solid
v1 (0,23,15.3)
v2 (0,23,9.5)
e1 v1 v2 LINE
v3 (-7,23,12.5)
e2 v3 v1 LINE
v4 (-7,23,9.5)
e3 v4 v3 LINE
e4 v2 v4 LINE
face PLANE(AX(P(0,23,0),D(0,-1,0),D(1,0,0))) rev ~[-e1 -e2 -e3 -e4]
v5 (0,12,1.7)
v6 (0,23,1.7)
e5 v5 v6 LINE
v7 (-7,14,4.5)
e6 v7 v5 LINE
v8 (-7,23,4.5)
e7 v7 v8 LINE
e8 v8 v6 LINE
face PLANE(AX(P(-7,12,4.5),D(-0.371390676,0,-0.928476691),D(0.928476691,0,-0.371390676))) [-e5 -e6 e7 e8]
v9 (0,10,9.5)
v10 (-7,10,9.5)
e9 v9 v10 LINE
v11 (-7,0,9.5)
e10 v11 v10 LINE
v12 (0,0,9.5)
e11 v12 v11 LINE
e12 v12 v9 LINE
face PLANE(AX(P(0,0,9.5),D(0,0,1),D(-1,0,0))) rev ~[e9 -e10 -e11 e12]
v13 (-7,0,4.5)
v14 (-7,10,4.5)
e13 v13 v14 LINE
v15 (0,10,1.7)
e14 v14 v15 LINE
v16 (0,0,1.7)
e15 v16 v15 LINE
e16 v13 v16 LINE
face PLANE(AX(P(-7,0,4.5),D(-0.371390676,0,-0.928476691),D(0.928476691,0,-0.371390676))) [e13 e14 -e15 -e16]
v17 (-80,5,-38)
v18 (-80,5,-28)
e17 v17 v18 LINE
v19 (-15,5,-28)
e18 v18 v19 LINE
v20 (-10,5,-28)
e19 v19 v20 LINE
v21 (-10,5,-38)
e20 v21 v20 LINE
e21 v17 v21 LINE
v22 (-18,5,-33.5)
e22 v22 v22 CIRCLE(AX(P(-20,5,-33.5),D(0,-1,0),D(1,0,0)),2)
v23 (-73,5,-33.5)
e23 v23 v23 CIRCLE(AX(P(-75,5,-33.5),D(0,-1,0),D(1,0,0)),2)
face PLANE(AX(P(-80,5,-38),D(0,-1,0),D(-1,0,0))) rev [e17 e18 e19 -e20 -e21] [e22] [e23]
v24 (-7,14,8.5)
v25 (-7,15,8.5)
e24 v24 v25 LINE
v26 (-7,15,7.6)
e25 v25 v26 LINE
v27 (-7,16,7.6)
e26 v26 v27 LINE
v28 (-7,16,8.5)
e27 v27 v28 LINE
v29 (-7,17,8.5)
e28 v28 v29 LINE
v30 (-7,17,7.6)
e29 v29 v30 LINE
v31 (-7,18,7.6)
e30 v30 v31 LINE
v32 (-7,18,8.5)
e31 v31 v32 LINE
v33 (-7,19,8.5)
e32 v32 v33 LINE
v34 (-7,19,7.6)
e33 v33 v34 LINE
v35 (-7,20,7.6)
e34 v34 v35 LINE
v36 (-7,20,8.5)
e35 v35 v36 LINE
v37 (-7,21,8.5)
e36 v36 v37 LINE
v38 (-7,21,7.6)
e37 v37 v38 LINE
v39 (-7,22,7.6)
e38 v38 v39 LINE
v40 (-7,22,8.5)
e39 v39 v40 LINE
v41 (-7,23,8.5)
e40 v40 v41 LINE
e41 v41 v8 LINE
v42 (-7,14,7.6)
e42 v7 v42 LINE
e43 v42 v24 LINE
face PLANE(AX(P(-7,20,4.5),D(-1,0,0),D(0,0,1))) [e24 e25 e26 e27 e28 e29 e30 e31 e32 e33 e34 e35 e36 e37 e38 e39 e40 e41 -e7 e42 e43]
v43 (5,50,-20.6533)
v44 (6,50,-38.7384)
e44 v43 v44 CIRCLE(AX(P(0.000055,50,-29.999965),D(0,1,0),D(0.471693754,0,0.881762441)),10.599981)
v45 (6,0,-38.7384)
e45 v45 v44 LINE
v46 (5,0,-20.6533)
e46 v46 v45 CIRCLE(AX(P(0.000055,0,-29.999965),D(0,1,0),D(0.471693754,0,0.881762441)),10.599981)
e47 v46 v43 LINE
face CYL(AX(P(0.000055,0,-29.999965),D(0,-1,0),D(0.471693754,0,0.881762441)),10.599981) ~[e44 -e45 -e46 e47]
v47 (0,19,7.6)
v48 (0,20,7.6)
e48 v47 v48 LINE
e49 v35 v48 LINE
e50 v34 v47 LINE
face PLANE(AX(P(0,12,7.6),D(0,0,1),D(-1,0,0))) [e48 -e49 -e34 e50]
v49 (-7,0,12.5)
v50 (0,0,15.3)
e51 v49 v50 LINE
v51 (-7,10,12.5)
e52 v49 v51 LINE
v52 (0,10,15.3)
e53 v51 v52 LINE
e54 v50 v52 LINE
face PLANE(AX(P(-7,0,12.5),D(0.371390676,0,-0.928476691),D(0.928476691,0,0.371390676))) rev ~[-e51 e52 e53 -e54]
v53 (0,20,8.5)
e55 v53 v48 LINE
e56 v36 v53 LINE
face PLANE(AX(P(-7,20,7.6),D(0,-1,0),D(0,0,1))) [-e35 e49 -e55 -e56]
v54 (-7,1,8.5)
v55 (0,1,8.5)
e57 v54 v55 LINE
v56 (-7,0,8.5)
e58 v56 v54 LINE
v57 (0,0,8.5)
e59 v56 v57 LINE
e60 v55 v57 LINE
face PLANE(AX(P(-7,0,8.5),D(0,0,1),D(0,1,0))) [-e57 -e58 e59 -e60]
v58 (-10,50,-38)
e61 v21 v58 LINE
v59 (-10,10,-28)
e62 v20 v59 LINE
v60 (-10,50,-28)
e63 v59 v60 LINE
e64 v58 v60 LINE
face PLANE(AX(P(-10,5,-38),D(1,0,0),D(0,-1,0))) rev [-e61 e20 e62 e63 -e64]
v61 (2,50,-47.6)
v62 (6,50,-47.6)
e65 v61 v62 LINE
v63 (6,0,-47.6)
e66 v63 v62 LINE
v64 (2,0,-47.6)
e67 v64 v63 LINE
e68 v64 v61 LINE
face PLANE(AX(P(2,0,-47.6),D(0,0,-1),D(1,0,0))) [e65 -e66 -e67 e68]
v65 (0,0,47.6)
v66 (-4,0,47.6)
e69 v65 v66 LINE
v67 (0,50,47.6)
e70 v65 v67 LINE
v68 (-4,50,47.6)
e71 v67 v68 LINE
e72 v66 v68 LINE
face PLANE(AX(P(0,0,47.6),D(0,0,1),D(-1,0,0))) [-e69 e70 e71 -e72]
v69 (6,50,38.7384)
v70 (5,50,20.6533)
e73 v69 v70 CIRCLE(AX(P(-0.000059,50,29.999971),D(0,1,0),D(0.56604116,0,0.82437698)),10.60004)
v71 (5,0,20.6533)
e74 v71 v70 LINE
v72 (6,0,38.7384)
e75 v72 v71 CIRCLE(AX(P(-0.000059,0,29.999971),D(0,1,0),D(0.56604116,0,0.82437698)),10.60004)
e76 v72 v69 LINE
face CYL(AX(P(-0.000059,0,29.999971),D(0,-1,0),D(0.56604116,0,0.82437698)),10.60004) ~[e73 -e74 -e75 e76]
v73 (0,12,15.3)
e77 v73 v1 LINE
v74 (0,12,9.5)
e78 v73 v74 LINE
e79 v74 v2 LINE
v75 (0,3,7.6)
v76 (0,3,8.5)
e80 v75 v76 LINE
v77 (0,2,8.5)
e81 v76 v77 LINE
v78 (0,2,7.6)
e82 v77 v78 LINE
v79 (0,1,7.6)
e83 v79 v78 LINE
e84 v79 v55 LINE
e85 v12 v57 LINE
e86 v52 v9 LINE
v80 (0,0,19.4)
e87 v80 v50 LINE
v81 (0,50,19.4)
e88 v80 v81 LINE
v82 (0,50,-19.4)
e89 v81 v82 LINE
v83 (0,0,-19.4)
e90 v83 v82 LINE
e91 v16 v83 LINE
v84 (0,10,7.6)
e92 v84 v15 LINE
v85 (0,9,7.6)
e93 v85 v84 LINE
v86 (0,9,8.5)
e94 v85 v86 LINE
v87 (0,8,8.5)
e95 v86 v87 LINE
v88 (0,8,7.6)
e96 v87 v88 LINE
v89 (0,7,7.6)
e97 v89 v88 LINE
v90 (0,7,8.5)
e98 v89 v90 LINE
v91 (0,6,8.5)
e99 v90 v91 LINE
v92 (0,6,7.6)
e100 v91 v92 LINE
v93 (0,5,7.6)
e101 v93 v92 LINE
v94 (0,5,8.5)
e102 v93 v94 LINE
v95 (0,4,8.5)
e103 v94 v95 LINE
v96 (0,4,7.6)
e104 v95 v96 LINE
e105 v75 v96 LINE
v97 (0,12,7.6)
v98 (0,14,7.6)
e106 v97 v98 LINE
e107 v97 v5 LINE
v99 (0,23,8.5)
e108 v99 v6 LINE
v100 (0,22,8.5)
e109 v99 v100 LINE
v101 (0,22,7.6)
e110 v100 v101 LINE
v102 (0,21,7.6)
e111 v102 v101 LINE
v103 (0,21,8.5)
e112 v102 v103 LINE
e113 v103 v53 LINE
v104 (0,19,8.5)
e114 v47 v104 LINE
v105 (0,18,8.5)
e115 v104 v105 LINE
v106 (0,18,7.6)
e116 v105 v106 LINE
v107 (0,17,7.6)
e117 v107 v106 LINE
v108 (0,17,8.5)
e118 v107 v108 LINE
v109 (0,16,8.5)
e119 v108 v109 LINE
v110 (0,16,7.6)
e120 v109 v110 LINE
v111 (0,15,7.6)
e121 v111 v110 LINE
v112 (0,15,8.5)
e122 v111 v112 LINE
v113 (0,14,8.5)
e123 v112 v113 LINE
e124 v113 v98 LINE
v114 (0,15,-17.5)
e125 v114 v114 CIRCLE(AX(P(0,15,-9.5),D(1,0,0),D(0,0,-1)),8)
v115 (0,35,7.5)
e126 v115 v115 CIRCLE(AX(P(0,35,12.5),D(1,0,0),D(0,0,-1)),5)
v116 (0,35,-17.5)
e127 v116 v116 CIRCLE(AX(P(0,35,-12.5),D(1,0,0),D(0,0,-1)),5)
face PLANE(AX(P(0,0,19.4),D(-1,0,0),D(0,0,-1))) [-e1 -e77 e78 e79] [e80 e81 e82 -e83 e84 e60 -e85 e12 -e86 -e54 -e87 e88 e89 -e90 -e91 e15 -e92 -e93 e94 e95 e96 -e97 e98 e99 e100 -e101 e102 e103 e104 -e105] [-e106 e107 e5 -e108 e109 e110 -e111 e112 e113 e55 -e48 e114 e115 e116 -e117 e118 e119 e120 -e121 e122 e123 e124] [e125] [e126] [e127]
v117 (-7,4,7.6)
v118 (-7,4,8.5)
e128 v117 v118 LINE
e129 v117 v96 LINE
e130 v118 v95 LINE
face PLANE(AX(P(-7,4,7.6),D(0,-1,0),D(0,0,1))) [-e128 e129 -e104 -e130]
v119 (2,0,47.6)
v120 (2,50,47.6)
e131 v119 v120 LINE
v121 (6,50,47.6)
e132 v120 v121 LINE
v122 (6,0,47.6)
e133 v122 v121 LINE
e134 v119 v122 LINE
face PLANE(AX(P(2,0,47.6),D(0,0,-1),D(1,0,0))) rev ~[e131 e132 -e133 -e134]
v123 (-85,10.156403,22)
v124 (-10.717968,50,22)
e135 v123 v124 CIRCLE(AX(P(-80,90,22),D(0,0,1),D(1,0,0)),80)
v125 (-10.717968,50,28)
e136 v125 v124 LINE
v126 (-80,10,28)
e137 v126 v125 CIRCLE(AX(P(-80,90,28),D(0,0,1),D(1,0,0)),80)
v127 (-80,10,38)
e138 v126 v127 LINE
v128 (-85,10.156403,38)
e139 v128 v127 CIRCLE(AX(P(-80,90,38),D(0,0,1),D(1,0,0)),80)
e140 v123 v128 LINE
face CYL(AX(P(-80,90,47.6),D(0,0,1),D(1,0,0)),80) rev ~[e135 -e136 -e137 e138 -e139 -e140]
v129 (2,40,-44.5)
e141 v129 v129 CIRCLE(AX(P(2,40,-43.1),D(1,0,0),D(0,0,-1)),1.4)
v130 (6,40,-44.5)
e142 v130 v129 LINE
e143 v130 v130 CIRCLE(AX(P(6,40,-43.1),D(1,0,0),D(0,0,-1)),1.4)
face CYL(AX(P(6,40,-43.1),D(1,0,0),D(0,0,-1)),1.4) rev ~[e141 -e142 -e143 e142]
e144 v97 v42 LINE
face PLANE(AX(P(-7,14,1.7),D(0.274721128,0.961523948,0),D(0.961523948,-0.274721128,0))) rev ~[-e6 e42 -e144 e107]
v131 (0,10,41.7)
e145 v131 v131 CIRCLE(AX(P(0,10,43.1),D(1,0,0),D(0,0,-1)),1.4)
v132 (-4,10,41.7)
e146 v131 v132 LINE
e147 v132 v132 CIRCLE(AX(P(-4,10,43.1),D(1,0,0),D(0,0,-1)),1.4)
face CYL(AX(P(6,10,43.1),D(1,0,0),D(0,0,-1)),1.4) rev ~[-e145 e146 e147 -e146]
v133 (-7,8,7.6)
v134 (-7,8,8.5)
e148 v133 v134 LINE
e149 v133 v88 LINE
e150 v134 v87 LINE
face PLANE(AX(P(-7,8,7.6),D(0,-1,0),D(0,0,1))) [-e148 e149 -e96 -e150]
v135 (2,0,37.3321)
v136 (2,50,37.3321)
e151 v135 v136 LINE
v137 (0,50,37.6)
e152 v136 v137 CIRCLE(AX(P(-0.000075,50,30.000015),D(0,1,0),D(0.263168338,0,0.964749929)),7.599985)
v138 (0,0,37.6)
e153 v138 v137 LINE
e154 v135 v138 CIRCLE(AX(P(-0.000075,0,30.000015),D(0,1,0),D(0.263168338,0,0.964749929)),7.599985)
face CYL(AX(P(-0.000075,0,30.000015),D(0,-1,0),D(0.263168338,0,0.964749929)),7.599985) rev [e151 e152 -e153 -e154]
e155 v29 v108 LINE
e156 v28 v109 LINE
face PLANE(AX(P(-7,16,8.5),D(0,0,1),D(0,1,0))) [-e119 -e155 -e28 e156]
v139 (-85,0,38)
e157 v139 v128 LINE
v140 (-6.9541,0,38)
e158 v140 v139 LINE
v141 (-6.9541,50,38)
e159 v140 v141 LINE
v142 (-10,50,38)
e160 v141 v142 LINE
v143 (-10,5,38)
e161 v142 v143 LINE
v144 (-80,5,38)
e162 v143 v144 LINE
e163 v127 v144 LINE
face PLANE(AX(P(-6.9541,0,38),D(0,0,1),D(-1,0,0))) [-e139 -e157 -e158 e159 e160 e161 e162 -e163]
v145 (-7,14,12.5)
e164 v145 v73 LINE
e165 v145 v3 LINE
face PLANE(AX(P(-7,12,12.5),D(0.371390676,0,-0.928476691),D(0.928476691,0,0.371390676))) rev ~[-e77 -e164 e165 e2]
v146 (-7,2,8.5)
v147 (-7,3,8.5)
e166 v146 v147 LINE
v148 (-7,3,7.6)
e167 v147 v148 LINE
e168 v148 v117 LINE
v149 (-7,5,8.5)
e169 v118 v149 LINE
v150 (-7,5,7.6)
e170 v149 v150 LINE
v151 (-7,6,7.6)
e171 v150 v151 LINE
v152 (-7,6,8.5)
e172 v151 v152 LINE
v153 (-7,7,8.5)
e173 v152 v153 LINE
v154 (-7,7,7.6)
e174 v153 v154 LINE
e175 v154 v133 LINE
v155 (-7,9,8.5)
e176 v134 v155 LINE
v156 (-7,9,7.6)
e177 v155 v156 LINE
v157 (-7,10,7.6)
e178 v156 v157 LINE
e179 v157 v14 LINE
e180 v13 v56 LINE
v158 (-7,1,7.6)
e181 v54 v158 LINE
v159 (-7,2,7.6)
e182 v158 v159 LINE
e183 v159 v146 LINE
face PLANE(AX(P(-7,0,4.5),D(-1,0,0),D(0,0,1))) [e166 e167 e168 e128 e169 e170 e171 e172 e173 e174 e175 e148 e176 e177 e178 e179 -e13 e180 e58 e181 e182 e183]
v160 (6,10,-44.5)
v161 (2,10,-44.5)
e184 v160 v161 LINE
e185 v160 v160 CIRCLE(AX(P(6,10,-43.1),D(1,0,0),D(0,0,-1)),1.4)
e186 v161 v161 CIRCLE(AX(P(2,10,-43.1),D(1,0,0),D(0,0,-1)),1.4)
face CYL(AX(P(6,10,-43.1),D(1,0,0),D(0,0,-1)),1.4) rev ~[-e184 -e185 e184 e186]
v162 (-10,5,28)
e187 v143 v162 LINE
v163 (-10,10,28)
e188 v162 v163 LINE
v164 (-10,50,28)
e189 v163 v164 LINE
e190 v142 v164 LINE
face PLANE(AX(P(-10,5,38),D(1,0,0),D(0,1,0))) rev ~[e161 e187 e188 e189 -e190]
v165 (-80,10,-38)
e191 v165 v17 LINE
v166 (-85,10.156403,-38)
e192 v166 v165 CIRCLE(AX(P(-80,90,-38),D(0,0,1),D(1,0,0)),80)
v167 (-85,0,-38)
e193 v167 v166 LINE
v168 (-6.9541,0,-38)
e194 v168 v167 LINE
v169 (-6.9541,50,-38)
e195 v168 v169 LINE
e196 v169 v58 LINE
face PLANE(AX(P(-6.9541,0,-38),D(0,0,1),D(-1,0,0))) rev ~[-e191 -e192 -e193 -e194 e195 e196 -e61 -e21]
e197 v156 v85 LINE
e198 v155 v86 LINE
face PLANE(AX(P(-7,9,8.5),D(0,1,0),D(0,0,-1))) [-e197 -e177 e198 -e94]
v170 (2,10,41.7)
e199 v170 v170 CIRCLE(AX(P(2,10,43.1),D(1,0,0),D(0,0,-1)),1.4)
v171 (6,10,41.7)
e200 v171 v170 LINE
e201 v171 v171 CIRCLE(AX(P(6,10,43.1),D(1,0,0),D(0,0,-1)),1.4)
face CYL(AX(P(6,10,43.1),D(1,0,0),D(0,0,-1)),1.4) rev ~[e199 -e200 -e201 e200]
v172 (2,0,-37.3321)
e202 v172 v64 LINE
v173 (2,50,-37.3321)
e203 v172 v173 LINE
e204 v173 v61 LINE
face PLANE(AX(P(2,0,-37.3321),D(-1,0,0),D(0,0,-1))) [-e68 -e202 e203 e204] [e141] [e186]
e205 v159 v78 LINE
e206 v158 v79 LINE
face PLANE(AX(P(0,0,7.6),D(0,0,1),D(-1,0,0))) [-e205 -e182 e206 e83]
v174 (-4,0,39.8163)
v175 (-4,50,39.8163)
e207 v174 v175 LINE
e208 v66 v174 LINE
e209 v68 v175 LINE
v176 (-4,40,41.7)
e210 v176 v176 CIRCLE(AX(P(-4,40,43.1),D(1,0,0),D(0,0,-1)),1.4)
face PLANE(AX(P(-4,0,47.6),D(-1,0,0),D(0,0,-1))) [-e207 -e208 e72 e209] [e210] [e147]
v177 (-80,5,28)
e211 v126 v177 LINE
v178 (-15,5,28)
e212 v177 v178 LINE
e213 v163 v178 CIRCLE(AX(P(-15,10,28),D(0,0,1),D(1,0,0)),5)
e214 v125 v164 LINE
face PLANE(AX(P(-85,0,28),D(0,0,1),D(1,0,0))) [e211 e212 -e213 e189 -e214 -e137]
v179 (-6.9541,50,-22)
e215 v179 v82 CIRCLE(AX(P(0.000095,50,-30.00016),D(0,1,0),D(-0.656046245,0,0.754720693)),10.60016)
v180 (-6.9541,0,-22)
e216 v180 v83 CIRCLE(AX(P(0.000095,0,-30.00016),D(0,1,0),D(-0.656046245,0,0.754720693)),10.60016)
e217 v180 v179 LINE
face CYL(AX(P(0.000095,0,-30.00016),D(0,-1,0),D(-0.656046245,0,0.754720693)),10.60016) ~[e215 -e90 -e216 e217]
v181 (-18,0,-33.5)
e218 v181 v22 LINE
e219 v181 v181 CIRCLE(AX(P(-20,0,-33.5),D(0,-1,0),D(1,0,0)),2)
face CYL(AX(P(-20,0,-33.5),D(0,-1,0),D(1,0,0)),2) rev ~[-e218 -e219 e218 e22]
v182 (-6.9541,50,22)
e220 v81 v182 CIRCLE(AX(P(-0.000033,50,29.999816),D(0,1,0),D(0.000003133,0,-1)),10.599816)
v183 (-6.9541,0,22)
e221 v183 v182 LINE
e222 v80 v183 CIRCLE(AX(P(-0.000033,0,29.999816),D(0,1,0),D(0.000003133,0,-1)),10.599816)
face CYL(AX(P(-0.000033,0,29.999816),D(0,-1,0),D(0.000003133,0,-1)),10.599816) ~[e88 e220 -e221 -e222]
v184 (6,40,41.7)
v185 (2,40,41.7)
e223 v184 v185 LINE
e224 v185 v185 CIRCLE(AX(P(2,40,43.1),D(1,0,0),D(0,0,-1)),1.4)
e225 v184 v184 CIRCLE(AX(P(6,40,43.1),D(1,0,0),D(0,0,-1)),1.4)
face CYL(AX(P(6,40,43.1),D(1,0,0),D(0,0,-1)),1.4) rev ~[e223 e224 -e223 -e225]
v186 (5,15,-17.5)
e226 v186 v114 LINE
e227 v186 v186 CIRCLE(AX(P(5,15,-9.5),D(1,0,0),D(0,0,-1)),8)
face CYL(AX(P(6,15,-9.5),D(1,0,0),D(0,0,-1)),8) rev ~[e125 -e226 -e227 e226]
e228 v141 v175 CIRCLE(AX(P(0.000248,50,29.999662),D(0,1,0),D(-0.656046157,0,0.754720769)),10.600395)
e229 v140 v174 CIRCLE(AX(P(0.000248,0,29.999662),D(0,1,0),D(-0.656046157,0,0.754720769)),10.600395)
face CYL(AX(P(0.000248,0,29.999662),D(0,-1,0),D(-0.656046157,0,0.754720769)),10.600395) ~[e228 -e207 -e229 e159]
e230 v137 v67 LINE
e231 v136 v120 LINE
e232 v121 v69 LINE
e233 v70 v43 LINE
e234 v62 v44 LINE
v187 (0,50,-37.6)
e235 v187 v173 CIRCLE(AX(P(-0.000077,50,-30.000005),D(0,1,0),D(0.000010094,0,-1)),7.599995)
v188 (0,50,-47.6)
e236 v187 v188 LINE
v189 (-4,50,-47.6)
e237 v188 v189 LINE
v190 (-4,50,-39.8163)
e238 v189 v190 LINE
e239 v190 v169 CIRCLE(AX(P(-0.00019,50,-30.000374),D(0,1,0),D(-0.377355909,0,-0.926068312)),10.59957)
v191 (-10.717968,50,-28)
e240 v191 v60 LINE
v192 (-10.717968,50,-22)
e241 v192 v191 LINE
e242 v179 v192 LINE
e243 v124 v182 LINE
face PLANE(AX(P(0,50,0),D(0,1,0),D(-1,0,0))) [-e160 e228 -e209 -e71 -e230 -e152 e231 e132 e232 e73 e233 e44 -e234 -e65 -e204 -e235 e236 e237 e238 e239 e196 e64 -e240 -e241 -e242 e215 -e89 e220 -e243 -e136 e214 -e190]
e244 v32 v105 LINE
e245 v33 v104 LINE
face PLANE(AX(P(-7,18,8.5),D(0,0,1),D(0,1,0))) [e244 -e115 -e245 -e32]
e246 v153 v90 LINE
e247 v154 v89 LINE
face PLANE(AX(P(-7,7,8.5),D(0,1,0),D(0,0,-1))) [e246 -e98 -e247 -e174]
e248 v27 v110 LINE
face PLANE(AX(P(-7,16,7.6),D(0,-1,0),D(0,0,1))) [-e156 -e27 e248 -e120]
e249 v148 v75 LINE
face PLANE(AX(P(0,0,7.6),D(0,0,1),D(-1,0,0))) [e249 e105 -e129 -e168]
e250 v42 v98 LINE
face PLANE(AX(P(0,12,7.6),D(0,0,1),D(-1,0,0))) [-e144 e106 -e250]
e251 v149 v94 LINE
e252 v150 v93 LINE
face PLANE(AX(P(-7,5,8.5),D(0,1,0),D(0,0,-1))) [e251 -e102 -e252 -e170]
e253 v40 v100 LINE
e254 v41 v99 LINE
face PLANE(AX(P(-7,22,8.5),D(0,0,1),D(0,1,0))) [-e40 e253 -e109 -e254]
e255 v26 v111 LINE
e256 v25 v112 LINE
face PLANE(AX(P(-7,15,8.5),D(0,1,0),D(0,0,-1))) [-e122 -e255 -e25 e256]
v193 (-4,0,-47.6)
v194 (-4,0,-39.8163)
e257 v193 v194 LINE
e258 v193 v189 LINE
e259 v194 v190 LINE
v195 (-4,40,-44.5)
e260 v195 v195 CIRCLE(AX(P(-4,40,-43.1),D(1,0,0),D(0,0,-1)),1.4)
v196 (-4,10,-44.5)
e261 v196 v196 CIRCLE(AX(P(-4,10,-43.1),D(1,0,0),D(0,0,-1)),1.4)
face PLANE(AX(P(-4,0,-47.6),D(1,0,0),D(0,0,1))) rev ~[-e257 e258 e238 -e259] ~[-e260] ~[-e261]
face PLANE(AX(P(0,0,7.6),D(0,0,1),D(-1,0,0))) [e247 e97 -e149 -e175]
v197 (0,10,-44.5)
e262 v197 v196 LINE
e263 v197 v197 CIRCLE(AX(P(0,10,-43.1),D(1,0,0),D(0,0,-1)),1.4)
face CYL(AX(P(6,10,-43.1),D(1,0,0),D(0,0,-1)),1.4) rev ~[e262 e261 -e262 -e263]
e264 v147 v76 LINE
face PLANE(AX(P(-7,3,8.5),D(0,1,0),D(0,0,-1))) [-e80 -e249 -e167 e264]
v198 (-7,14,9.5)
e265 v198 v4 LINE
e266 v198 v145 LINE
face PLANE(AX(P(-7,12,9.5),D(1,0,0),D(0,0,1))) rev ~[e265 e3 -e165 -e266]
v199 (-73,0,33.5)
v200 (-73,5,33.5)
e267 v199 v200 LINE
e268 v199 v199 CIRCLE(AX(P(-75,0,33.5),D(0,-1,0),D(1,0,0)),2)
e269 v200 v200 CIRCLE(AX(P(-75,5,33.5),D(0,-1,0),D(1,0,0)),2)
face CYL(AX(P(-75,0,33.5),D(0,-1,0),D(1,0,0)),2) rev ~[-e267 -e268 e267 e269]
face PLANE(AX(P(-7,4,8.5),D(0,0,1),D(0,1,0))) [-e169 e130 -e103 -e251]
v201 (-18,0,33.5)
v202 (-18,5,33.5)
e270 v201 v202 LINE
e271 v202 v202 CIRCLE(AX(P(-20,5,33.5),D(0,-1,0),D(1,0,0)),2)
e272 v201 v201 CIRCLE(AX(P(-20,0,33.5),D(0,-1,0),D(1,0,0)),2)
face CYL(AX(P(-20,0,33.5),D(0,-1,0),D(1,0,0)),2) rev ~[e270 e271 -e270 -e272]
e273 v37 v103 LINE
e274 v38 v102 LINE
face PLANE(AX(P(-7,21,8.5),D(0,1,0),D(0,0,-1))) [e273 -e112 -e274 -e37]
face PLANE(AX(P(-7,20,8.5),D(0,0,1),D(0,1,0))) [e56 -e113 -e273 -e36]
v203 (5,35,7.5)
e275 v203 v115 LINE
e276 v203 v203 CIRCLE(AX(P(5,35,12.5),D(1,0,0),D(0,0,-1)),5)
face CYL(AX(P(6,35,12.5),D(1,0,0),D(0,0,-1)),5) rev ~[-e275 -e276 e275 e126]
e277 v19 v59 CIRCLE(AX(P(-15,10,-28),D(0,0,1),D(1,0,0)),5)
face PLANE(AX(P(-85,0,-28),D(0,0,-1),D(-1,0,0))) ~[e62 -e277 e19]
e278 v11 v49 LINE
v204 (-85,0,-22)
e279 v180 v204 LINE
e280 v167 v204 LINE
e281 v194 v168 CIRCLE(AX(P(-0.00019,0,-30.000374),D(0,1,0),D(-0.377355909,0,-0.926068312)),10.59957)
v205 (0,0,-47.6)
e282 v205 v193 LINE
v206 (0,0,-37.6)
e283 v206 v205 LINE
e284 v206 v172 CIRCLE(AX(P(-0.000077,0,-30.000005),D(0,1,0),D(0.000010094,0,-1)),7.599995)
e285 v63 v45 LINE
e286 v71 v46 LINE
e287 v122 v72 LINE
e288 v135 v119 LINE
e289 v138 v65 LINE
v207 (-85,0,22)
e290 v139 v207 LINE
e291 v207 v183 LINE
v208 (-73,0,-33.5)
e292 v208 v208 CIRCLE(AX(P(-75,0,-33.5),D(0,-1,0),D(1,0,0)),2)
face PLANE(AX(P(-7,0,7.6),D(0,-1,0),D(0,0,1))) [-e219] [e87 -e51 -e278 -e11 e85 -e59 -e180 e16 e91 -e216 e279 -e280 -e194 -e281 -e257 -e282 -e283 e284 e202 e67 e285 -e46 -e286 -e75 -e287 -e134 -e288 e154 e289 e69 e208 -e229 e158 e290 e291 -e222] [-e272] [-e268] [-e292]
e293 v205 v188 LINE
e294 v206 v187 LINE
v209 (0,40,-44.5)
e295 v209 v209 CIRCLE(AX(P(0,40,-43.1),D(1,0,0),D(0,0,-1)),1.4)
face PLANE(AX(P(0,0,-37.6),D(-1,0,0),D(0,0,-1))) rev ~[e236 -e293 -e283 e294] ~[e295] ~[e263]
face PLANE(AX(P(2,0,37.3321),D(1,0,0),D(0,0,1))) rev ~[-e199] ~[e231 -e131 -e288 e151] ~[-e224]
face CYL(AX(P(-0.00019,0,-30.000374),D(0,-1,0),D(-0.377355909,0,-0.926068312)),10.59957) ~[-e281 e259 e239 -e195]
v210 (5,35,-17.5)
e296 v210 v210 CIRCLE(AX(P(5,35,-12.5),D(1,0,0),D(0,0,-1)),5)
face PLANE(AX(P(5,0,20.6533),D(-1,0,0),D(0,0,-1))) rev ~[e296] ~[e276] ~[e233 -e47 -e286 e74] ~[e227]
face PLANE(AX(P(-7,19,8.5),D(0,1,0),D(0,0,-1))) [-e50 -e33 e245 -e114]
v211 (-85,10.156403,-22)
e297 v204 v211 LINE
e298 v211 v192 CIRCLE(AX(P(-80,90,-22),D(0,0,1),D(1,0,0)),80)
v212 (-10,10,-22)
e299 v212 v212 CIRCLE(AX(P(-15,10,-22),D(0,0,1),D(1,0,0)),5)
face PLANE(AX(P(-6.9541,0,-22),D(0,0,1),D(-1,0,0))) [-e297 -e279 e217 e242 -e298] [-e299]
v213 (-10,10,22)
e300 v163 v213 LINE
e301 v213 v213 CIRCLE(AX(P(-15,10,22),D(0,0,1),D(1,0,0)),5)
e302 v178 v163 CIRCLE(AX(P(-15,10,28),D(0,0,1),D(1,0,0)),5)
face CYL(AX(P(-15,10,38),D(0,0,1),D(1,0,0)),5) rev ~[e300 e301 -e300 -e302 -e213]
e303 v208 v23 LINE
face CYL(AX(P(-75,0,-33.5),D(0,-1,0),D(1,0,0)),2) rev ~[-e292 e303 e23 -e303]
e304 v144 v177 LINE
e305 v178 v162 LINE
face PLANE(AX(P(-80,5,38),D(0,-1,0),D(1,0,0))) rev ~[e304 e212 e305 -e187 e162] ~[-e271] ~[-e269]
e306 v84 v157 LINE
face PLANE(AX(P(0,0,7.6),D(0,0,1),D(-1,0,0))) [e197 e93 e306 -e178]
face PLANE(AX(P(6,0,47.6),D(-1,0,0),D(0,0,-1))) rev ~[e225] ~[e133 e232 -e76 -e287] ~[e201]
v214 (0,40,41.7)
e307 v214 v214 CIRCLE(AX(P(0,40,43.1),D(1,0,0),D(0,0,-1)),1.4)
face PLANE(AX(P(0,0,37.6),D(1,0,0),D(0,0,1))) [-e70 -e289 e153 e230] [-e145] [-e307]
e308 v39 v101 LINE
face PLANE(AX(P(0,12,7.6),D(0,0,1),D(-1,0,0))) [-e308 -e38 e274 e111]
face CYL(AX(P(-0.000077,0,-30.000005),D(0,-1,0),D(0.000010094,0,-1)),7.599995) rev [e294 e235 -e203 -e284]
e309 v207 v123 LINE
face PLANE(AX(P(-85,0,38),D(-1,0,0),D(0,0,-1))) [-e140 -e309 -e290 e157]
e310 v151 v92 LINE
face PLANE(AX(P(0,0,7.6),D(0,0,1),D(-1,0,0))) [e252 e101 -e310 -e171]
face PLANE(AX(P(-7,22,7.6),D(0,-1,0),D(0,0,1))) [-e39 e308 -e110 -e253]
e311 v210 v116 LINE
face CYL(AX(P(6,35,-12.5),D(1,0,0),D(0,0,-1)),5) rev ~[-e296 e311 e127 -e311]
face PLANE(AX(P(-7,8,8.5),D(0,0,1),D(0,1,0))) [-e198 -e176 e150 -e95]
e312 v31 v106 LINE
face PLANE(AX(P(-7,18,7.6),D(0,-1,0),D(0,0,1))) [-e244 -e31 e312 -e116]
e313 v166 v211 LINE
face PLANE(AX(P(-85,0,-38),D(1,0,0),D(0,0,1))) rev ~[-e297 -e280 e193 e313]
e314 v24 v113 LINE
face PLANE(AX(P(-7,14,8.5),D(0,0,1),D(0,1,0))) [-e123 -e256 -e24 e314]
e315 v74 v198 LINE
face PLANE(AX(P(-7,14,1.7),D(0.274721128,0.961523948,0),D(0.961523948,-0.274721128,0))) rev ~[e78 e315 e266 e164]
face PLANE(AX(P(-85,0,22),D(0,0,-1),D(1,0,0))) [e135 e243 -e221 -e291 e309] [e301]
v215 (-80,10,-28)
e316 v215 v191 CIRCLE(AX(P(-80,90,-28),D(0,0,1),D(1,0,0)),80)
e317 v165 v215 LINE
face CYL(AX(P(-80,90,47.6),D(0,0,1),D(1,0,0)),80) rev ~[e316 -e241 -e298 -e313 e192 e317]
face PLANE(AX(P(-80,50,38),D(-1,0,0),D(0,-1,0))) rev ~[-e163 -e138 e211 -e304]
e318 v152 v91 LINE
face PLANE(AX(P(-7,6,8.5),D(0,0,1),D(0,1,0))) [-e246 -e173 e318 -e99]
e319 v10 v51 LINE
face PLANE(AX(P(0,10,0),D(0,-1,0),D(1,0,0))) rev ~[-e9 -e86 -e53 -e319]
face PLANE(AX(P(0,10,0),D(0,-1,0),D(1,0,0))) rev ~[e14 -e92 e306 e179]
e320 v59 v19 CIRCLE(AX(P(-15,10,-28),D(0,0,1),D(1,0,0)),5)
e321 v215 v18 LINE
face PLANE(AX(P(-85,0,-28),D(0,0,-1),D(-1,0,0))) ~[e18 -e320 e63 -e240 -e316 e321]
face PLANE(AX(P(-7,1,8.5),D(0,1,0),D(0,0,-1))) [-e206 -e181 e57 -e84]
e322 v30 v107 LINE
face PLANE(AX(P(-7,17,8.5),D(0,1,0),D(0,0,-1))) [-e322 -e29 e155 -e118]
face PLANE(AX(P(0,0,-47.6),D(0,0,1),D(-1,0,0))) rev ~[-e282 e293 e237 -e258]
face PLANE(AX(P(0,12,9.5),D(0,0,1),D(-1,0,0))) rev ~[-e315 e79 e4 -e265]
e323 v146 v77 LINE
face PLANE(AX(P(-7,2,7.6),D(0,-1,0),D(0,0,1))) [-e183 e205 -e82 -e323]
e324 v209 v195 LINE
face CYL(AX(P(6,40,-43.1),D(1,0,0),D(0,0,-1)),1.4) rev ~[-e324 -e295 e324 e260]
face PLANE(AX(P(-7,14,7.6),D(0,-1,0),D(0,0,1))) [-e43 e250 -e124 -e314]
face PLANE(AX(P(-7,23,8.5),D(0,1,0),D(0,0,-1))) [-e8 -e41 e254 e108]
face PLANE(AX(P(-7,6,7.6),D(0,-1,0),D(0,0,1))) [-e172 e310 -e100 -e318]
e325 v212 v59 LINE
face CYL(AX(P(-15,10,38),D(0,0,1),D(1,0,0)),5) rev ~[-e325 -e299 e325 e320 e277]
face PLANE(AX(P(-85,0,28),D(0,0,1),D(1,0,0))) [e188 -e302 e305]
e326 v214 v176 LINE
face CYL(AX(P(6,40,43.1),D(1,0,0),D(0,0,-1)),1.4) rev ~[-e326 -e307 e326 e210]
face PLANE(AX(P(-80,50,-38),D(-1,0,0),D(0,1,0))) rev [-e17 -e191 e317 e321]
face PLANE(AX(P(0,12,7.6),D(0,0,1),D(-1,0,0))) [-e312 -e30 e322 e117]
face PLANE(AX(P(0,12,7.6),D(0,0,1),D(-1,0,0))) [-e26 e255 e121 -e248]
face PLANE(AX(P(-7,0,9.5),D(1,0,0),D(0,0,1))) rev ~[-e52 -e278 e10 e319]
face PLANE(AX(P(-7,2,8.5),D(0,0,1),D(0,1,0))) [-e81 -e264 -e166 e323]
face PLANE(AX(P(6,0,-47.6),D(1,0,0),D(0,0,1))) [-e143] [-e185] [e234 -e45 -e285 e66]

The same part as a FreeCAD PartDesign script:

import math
import FreeCAD as App
import Part
import Sketcher
Q = App.Units.Quantity

doc = App.newDocument("Part")
body = doc.addObject("PartDesign::Body", "Body")

# Sketch on XZ plane
sketch1 = body.newObject("Sketcher::SketchObject", "Sketch")
sketch1.AttachmentSupport = (doc.getObject("XZ_Plane"), [""])
sketch1.MapMode = "FlatFace"
sketch1.addGeometry([
    Part.LineSegment(App.Vector(0, -19.4, 0), App.Vector(0, 19.4, 0)),  # 0
    Part.ArcOfCircle(Part.Circle(App.Vector(0, 30, 0), App.Vector(0, 0, 1), 10.6), math.radians(-131), math.radians(-90)),  # 1
    Part.LineSegment(App.Vector(-7, 22, 0), App.Vector(-85, 22, 0)),  # 2
    Part.LineSegment(App.Vector(-85, 22, 0), App.Vector(-85, 38, 0)),  # 3
    Part.LineSegment(App.Vector(-85, 38, 0), App.Vector(-7, 38, 0)),  # 4
    Part.ArcOfCircle(Part.Circle(App.Vector(0, 30, 0), App.Vector(0, 0, 1), 10.6), math.radians(112.17), math.radians(131)),  # 5
    Part.LineSegment(App.Vector(-4, 39.8, 0), App.Vector(-4, 47.6, 0)),  # 6
    Part.LineSegment(App.Vector(-4, 47.6, 0), App.Vector(0, 47.6, 0)),  # 7
    Part.LineSegment(App.Vector(0, 47.6, 0), App.Vector(0, 37.6, 0)),  # 8
    Part.ArcOfCircle(Part.Circle(App.Vector(0, 30, 0), App.Vector(0, 0, 1), 7.6), math.radians(90), math.radians(435)),  # 9
    Part.LineSegment(App.Vector(2, 37.3, 0), App.Vector(2, 47.6, 0)),  # 10
    Part.LineSegment(App.Vector(2, 47.6, 0), App.Vector(6, 47.6, 0)),  # 11
    Part.LineSegment(App.Vector(6, 47.6, 0), App.Vector(6, 38.7, 0)),  # 12
    Part.ArcOfCircle(Part.Circle(App.Vector(0, 30, 0), App.Vector(0, 0, 1), 10.6), math.radians(-62), math.radians(56)),  # 13
    Part.LineSegment(App.Vector(5, 20.7, 0), App.Vector(5, -20.7, 0)),  # 14
    Part.ArcOfCircle(Part.Circle(App.Vector(0, -30, 0), App.Vector(0, 0, 1), 10.6), math.radians(-56), math.radians(62)),  # 15
    Part.LineSegment(App.Vector(6, -38.7, 0), App.Vector(6, -47.6, 0)),  # 16
    Part.LineSegment(App.Vector(6, -47.6, 0), App.Vector(2, -47.6, 0)),  # 17
    Part.LineSegment(App.Vector(2, -47.6, 0), App.Vector(2, -37.3, 0)),  # 18
    Part.ArcOfCircle(Part.Circle(App.Vector(0, -30, 0), App.Vector(0, 0, 1), 7.6), math.radians(-75), math.radians(270)),  # 19
    Part.LineSegment(App.Vector(0, -37.6, 0), App.Vector(0, -47.6, 0)),  # 20
    Part.LineSegment(App.Vector(0, -47.6, 0), App.Vector(-4, -47.6, 0)),  # 21
    Part.LineSegment(App.Vector(-4, -47.6, 0), App.Vector(-4, -39.8, 0)),  # 22
    Part.ArcOfCircle(Part.Circle(App.Vector(0, -30, 0), App.Vector(0, 0, 1), 10.6), math.radians(-131), math.radians(-112.17)),  # 23
    Part.LineSegment(App.Vector(-7, -38, 0), App.Vector(-85, -38, 0)),  # 24
    Part.LineSegment(App.Vector(-85, -38, 0), App.Vector(-85, -22, 0)),  # 25
    Part.LineSegment(App.Vector(-85, -22, 0), App.Vector(-7, -22, 0)),  # 26
    Part.ArcOfCircle(Part.Circle(App.Vector(0, -30, 0), App.Vector(0, 0, 1), 10.6), math.radians(90), math.radians(131)),  # 27
], False)
sketch1.addConstraint([
    Sketcher.Constraint("Coincident", 0, 2, 1, 2),
    Sketcher.Constraint("Coincident", 1, 1, 2, 1),
    Sketcher.Constraint("Coincident", 2, 2, 3, 1),
    Sketcher.Constraint("Coincident", 3, 2, 4, 1),
    Sketcher.Constraint("Coincident", 4, 2, 5, 2),
    Sketcher.Constraint("Coincident", 5, 1, 6, 1),
    Sketcher.Constraint("Coincident", 6, 2, 7, 1),
    Sketcher.Constraint("Coincident", 7, 2, 8, 1),
    Sketcher.Constraint("Coincident", 8, 2, 9, 1),
    Sketcher.Constraint("Coincident", 9, 2, 10, 1),
    Sketcher.Constraint("Coincident", 10, 2, 11, 1),
    Sketcher.Constraint("Coincident", 11, 2, 12, 1),
    Sketcher.Constraint("Coincident", 12, 2, 13, 2),
    Sketcher.Constraint("Coincident", 13, 1, 14, 1),
    Sketcher.Constraint("Coincident", 14, 2, 15, 2),
    Sketcher.Constraint("Coincident", 15, 1, 16, 1),
    Sketcher.Constraint("Coincident", 16, 2, 17, 1),
    Sketcher.Constraint("Coincident", 17, 2, 18, 1),
    Sketcher.Constraint("Coincident", 18, 2, 19, 1),
    Sketcher.Constraint("Coincident", 19, 2, 20, 1),
    Sketcher.Constraint("Coincident", 20, 2, 21, 1),
    Sketcher.Constraint("Coincident", 21, 2, 22, 1),
    Sketcher.Constraint("Coincident", 22, 2, 23, 2),
    Sketcher.Constraint("Coincident", 23, 1, 24, 1),
    Sketcher.Constraint("Coincident", 24, 2, 25, 1),
    Sketcher.Constraint("Coincident", 25, 2, 26, 1),
    Sketcher.Constraint("Coincident", 26, 2, 27, 2),
    Sketcher.Constraint("Coincident", 27, 1, 0, 1),
    Sketcher.Constraint("Vertical", 0),
    Sketcher.Constraint("Horizontal", 2),
    Sketcher.Constraint("Vertical", 3),
    Sketcher.Constraint("Horizontal", 4),
    Sketcher.Constraint("Vertical", 6),
    Sketcher.Constraint("Horizontal", 7),
    Sketcher.Constraint("Vertical", 8),
    Sketcher.Constraint("Vertical", 10),
    Sketcher.Constraint("Horizontal", 11),
    Sketcher.Constraint("Vertical", 12),
    Sketcher.Constraint("Vertical", 14),
    Sketcher.Constraint("Vertical", 16),
    Sketcher.Constraint("Horizontal", 17),
    Sketcher.Constraint("Vertical", 18),
    Sketcher.Constraint("Vertical", 20),
    Sketcher.Constraint("Horizontal", 21),
    Sketcher.Constraint("Vertical", 22),
    Sketcher.Constraint("Horizontal", 24),
    Sketcher.Constraint("Vertical", 25),
    Sketcher.Constraint("Horizontal", 26),
    Sketcher.Constraint("Coincident", 5, 3, 1, 3),
    Sketcher.Constraint("Coincident", 9, 3, 1, 3),
    Sketcher.Constraint("Coincident", 13, 3, 1, 3),
    Sketcher.Constraint("Coincident", 19, 3, 15, 3),
    Sketcher.Constraint("Coincident", 23, 3, 15, 3),
    Sketcher.Constraint("Coincident", 27, 3, 15, 3),
    Sketcher.Constraint("Equal", 1, 5),
    Sketcher.Constraint("Equal", 5, 13),
    Sketcher.Constraint("Equal", 13, 15),
    Sketcher.Constraint("Equal", 9, 19),
    Sketcher.Constraint("Equal", 15, 23),
    Sketcher.Constraint("Equal", 23, 27),
    Sketcher.Constraint("Symmetric", 1, 3, 15, 3, -1, 1),
    Sketcher.Constraint("Symmetric", 7, 2, 20, 2, -1, 1),
    Sketcher.Constraint("Symmetric", 12, 2, 15, 1, -1),
    Sketcher.Constraint("Symmetric", 10, 2, 17, 2, -1),
    Sketcher.Constraint("Symmetric", 3, 2, 24, 2, -1),
    Sketcher.Constraint("PointOnObject", 0, 2, -2),
    Sketcher.Constraint("PointOnObject", 7, 2, -2),
    Sketcher.Constraint("Horizontal", 7, 2, 10, 2),
    Sketcher.Constraint("Vertical", 1, 1, 4, 2),
    Sketcher.Constraint("Vertical", 6, 2, 21, 2),
    Sketcher.Constraint("Vertical", 23, 1, 26, 2),
    Sketcher.Constraint("Equal", 7, 11),
    Sketcher.Constraint("Radius", 1, Q("10.6 mm")),
    Sketcher.Constraint("Radius", 9, Q("7.6 mm")),
    Sketcher.Constraint("DistanceX", 7, 1, 7, 2, Q("4 mm")),
    Sketcher.Constraint("DistanceY", 3, 1, 3, 2, Q("16 mm")),
    Sketcher.Constraint("DistanceY", -1, 1, 1, 3, Q("30 mm")),
    Sketcher.Constraint("DistanceX", 2, 2, -1, 1, Q("85 mm")),
    Sketcher.Constraint("DistanceX", -1, 1, 9, 2, Q("2 mm")),
    Sketcher.Constraint("DistanceX", -1, 1, 13, 1, Q("5 mm")),
    Sketcher.Constraint("DistanceY", -1, 1, 6, 2, Q("47.6 mm")),
])
pad1 = body.newObject("PartDesign::Pad", "Pad")
pad1.Profile = sketch1
pad1.Length = 50
pad1.Reversed = True

# Sketch on XY plane
sketch2 = body.newObject("Sketcher::SketchObject", "Sketch001")
sketch2.AttachmentSupport = (doc.getObject("XY_Plane"), [""])
sketch2.MapMode = "FlatFace"
sketch2.AttachmentOffset = App.Placement(App.Vector(0, 0, 47.6), App.Rotation())
sketch2.addGeometry(Part.Circle(App.Vector(-80, 90, 0), App.Vector(0, 0, 1), 80), False)
sketch2.addConstraint([
    Sketcher.Constraint("Diameter", 0, Q("160 mm")),
    Sketcher.Constraint("DistanceX", 0, 3, -1, 1, Q("80 mm")),
    Sketcher.Constraint("DistanceY", -1, 1, 0, 3, Q("90 mm")),
])
pocket1 = body.newObject("PartDesign::Pocket", "Pocket")
pocket1.Profile = sketch2
pocket1.Type = "ThroughAll"

# Sketch on XY plane
sketch3 = body.newObject("Sketcher::SketchObject", "Sketch002")
sketch3.AttachmentSupport = (doc.getObject("XY_Plane"), [""])
sketch3.MapMode = "FlatFace"
sketch3.AttachmentOffset = App.Placement(App.Vector(0, 0, 38), App.Rotation())
sketch3.addGeometry(Part.Circle(App.Vector(-15, 10, 0), App.Vector(0, 0, 1), 5), False)
sketch3.addConstraint([
    Sketcher.Constraint("Diameter", 0, Q("10 mm")),
    Sketcher.Constraint("DistanceX", 0, 3, -1, 1, Q("15 mm")),
    Sketcher.Constraint("DistanceY", -1, 1, 0, 3, Q("10 mm")),
])
pocket2 = body.newObject("PartDesign::Pocket", "Pocket001")
pocket2.Profile = sketch3
pocket2.Type = "ThroughAll"

# Sketch on XY plane
sketch4 = body.newObject("Sketcher::SketchObject", "Sketch003")
sketch4.AttachmentSupport = (doc.getObject("XY_Plane"), [""])
sketch4.MapMode = "FlatFace"
sketch4.AttachmentOffset = App.Placement(App.Vector(0, 0, 38), App.Rotation())
sketch4.addGeometry([
    Part.LineSegment(App.Vector(-10, 50, 0), App.Vector(-80, 50, 0)),
    Part.LineSegment(App.Vector(-80, 50, 0), App.Vector(-80, 5, 0)),
    Part.LineSegment(App.Vector(-80, 5, 0), App.Vector(-10, 5, 0)),
    Part.LineSegment(App.Vector(-10, 5, 0), App.Vector(-10, 50, 0)),
], False)
sketch4.addConstraint([
    Sketcher.Constraint("Coincident", 0, 2, 1, 1),
    Sketcher.Constraint("Coincident", 1, 2, 2, 1),
    Sketcher.Constraint("Coincident", 2, 2, 3, 1),
    Sketcher.Constraint("Coincident", 3, 2, 0, 1),
    Sketcher.Constraint("Horizontal", 0),
    Sketcher.Constraint("Vertical", 1),
    Sketcher.Constraint("Horizontal", 2),
    Sketcher.Constraint("Vertical", 3),
    Sketcher.Constraint("DistanceX", 0, 2, 0, 1, Q("70 mm")),
    Sketcher.Constraint("DistanceY", -1, 1, 1, 2, Q("5 mm")),
    Sketcher.Constraint("DistanceY", 1, 2, 1, 1, Q("45 mm")),
    Sketcher.Constraint("DistanceX", 0, 2, -1, 1, Q("80 mm")),
])
pocket3 = body.newObject("PartDesign::Pocket", "Pocket002")
pocket3.Profile = sketch4
pocket3.Length = 10
doc.recompute()

mirrored = body.newObject("PartDesign::Mirrored", "Mirrored")
mirrored.Originals = [pocket3]
mirrored.MirrorPlane = (doc.getObject("XY_Plane"), [""])
body.Tip = mirrored

# Sketch on XZ plane
sketch5 = body.newObject("Sketcher::SketchObject", "Sketch004")
sketch5.AttachmentSupport = (doc.getObject("XZ_Plane"), [""])
sketch5.MapMode = "FlatFace"
sketch5.addGeometry([
    Part.Circle(App.Vector(-75, -33.5, 0), App.Vector(0, 0, 1), 2),
    Part.Circle(App.Vector(-20, -33.5, 0), App.Vector(0, 0, 1), 2),
    Part.Circle(App.Vector(-75, 33.5, 0), App.Vector(0, 0, 1), 2),
    Part.Circle(App.Vector(-20, 33.5, 0), App.Vector(0, 0, 1), 2),
], False)
sketch5.addConstraint([
    Sketcher.Constraint("Equal", 0, 1),
    Sketcher.Constraint("Equal", 1, 2),
    Sketcher.Constraint("Equal", 2, 3),
    Sketcher.Constraint("Symmetric", 0, 3, 2, 3, -1),
    Sketcher.Constraint("Symmetric", 1, 3, 3, 3, -1),
    Sketcher.Constraint("Horizontal", 0, 3, 1, 3),
    Sketcher.Constraint("Diameter", 0, Q("4 mm")),
    Sketcher.Constraint("DistanceX", 1, 3, -1, 1, Q("20 mm")),
    Sketcher.Constraint("DistanceX", 0, 3, 1, 3, Q("55 mm")),
    Sketcher.Constraint("DistanceY", 0, 3, -1, 1, Q("33.5 mm")),
])
pocket4 = body.newObject("PartDesign::Pocket", "Pocket003")
pocket4.Profile = sketch5
pocket4.Length = 5

# Sketch on YZ plane
sketch6 = body.newObject("Sketcher::SketchObject", "Sketch005")
sketch6.AttachmentSupport = (doc.getObject("YZ_Plane"), [""])
sketch6.MapMode = "FlatFace"
sketch6.AttachmentOffset = App.Placement(App.Vector(0, 0, 6), App.Rotation())
sketch6.addGeometry([
    Part.Circle(App.Vector(40, 43.1, 0), App.Vector(0, 0, 1), 1.4),  # 0
    Part.Circle(App.Vector(10, 43.1, 0), App.Vector(0, 0, 1), 1.4),  # 1
    Part.Circle(App.Vector(40, -43.1, 0), App.Vector(0, 0, 1), 1.4),  # 2
    Part.Circle(App.Vector(10, -43.1, 0), App.Vector(0, 0, 1), 1.4),  # 3
    Part.Circle(App.Vector(35, 12.5, 0), App.Vector(0, 0, 1), 5),  # 4
    Part.Circle(App.Vector(35, -12.5, 0), App.Vector(0, 0, 1), 5),  # 5
    Part.Circle(App.Vector(15, -9.5, 0), App.Vector(0, 0, 1), 8),  # 6
], False)
sketch6.addConstraint([
    Sketcher.Constraint("Equal", 0, 1),
    Sketcher.Constraint("Equal", 1, 2),
    Sketcher.Constraint("Equal", 2, 3),
    Sketcher.Constraint("Equal", 4, 5),
    Sketcher.Constraint("Symmetric", 0, 3, 2, 3, -1),
    Sketcher.Constraint("Symmetric", 1, 3, 3, 3, -1),
    Sketcher.Constraint("Symmetric", 4, 3, 5, 3, -1),
    Sketcher.Constraint("Horizontal", 0, 3, 1, 3),
    Sketcher.Constraint("Diameter", 4, Q("10 mm")),
    Sketcher.Constraint("Diameter", 6, Q("16 mm")),
    Sketcher.Constraint("Diameter", 0, Q("2.8 mm")),
    Sketcher.Constraint("DistanceX", -1, 1, 1, 3, Q("10 mm")),
    Sketcher.Constraint("DistanceX", -1, 1, 4, 3, Q("35 mm")),
    Sketcher.Constraint("DistanceX", -1, 1, 6, 3, Q("15 mm")),
    Sketcher.Constraint("DistanceX", 1, 3, 0, 3, Q("30 mm")),
    Sketcher.Constraint("DistanceY", 5, 3, 4, 3, Q("25 mm")),
    Sketcher.Constraint("DistanceY", -1, 1, 0, 3, Q("43.1 mm")),
    Sketcher.Constraint("DistanceY", 6, 3, -1, 1, Q("9.5 mm")),
])
pocket5 = body.newObject("PartDesign::Pocket", "Pocket004")
pocket5.Profile = sketch6
pocket5.Type = "ThroughAll"

# Sketch on XZ plane
sketch7 = body.newObject("Sketcher::SketchObject", "Sketch006")
sketch7.AttachmentSupport = (doc.getObject("XZ_Plane"), [""])
sketch7.MapMode = "FlatFace"
sketch7.addGeometry([
    Part.LineSegment(App.Vector(-7, 9.5, 0), App.Vector(0, 9.5, 0)),  # 0
    Part.LineSegment(App.Vector(0, 9.5, 0), App.Vector(0, 15.3, 0)),  # 1
    Part.LineSegment(App.Vector(0, 15.3, 0), App.Vector(-7, 12.5, 0)),  # 2
    Part.LineSegment(App.Vector(-7, 12.5, 0), App.Vector(-7, 9.5, 0)),  # 3
    Part.LineSegment(App.Vector(0, 1.7, 0), App.Vector(0, 7.6, 0)),  # 4
    Part.LineSegment(App.Vector(0, 7.6, 0), App.Vector(-7, 7.6, 0)),  # 5
    Part.LineSegment(App.Vector(-7, 7.6, 0), App.Vector(-7, 4.5, 0)),  # 6
    Part.LineSegment(App.Vector(-7, 4.5, 0), App.Vector(0, 1.7, 0)),  # 7
], False)
sketch7.addConstraint([
    Sketcher.Constraint("Coincident", 0, 2, 1, 1),
    Sketcher.Constraint("Coincident", 1, 2, 2, 1),
    Sketcher.Constraint("Coincident", 2, 2, 3, 1),
    Sketcher.Constraint("Coincident", 3, 2, 0, 1),
    Sketcher.Constraint("Coincident", 4, 2, 5, 1),
    Sketcher.Constraint("Coincident", 5, 2, 6, 1),
    Sketcher.Constraint("Coincident", 6, 2, 7, 1),
    Sketcher.Constraint("Coincident", 7, 2, 4, 1),
    Sketcher.Constraint("Horizontal", 0),
    Sketcher.Constraint("Vertical", 1),
    Sketcher.Constraint("Vertical", 3),
    Sketcher.Constraint("Vertical", 4),
    Sketcher.Constraint("Horizontal", 5),
    Sketcher.Constraint("Vertical", 6),
    Sketcher.Constraint("PointOnObject", 0, 2, -2),
    Sketcher.Constraint("PointOnObject", 4, 2, -2),
    Sketcher.Constraint("Vertical", 3, 2, 5, 2),
    Sketcher.Constraint("Equal", 2, 7),
    Sketcher.Constraint("DistanceX", 0, 1, 0, 2, Q("7 mm")),
    Sketcher.Constraint("DistanceY", 3, 2, 3, 1, Q("3 mm")),
    Sketcher.Constraint("DistanceY", 1, 1, 1, 2, Q("5.8 mm")),
    Sketcher.Constraint("DistanceY", 4, 1, 4, 2, Q("5.9 mm")),
    Sketcher.Constraint("DistanceY", -1, 1, 0, 2, Q("9.5 mm")),
    Sketcher.Constraint("DistanceY", 4, 2, 0, 2, Q("1.9 mm")),
])
pad2 = body.newObject("PartDesign::Pad", "Pad001")
pad2.Profile = sketch7
pad2.Length = 10
pad2.Reversed = True

# Sketch on XZ plane
sketch8 = body.newObject("Sketcher::SketchObject", "Sketch007")
sketch8.AttachmentSupport = (doc.getObject("XZ_Plane"), [""])
sketch8.MapMode = "FlatFace"
sketch8.AttachmentOffset = App.Placement(App.Vector(0, 0, -12), App.Rotation())
sketch8.addGeometry([
    Part.LineSegment(App.Vector(-7, 9.5, 0), App.Vector(0, 9.5, 0)),  # 0
    Part.LineSegment(App.Vector(0, 9.5, 0), App.Vector(0, 15.3, 0)),  # 1
    Part.LineSegment(App.Vector(0, 15.3, 0), App.Vector(-7, 12.5, 0)),  # 2
    Part.LineSegment(App.Vector(-7, 12.5, 0), App.Vector(-7, 9.5, 0)),  # 3
    Part.LineSegment(App.Vector(0, 1.7, 0), App.Vector(0, 7.6, 0)),  # 4
    Part.LineSegment(App.Vector(0, 7.6, 0), App.Vector(-7, 7.6, 0)),  # 5
    Part.LineSegment(App.Vector(-7, 7.6, 0), App.Vector(-7, 4.5, 0)),  # 6
    Part.LineSegment(App.Vector(-7, 4.5, 0), App.Vector(0, 1.7, 0)),  # 7
], False)
sketch8.addConstraint([
    Sketcher.Constraint("Coincident", 0, 2, 1, 1),
    Sketcher.Constraint("Coincident", 1, 2, 2, 1),
    Sketcher.Constraint("Coincident", 2, 2, 3, 1),
    Sketcher.Constraint("Coincident", 3, 2, 0, 1),
    Sketcher.Constraint("Coincident", 4, 2, 5, 1),
    Sketcher.Constraint("Coincident", 5, 2, 6, 1),
    Sketcher.Constraint("Coincident", 6, 2, 7, 1),
    Sketcher.Constraint("Coincident", 7, 2, 4, 1),
    Sketcher.Constraint("Horizontal", 0),
    Sketcher.Constraint("Vertical", 1),
    Sketcher.Constraint("Vertical", 3),
    Sketcher.Constraint("Vertical", 4),
    Sketcher.Constraint("Horizontal", 5),
    Sketcher.Constraint("Vertical", 6),
    Sketcher.Constraint("PointOnObject", 0, 2, -2),
    Sketcher.Constraint("PointOnObject", 4, 2, -2),
    Sketcher.Constraint("Vertical", 3, 2, 5, 2),
    Sketcher.Constraint("Equal", 2, 7),
    Sketcher.Constraint("DistanceX", 0, 1, 0, 2, Q("7 mm")),
    Sketcher.Constraint("DistanceY", 3, 2, 3, 1, Q("3 mm")),
    Sketcher.Constraint("DistanceY", 1, 1, 1, 2, Q("5.8 mm")),
    Sketcher.Constraint("DistanceY", 4, 1, 4, 2, Q("5.9 mm")),
    Sketcher.Constraint("DistanceY", -1, 1, 0, 2, Q("9.5 mm")),
    Sketcher.Constraint("DistanceY", 4, 2, 0, 2, Q("1.9 mm")),
])
pad3 = body.newObject("PartDesign::Pad", "Pad002")
pad3.Profile = sketch8
pad3.Length = 11
pad3.Reversed = True

# Sketch on YZ plane
sketch9 = body.newObject("Sketcher::SketchObject", "Sketch008")
sketch9.AttachmentSupport = (doc.getObject("YZ_Plane"), [""])
sketch9.MapMode = "FlatFace"
sketch9.AttachmentOffset = App.Placement(App.Vector(0, 0, -7), App.Rotation())
sketch9.addGeometry([
    Part.LineSegment(App.Vector(1, 7.6, 0), App.Vector(0, 7.6, 0)),
    Part.LineSegment(App.Vector(0, 7.6, 0), App.Vector(0, 8.5, 0)),
    Part.LineSegment(App.Vector(0, 8.5, 0), App.Vector(1, 8.5, 0)),
    Part.LineSegment(App.Vector(1, 8.5, 0), App.Vector(1, 7.6, 0)),
], False)
sketch9.addConstraint([
    Sketcher.Constraint("Coincident", 0, 2, 1, 1),
    Sketcher.Constraint("Coincident", 1, 2, 2, 1),
    Sketcher.Constraint("Coincident", 2, 2, 3, 1),
    Sketcher.Constraint("Coincident", 3, 2, 0, 1),
    Sketcher.Constraint("Horizontal", 0),
    Sketcher.Constraint("Vertical", 1),
    Sketcher.Constraint("Horizontal", 2),
    Sketcher.Constraint("Vertical", 3),
    Sketcher.Constraint("PointOnObject", 0, 2, -2),
    Sketcher.Constraint("DistanceX", 0, 2, 0, 1, Q("1 mm")),
    Sketcher.Constraint("DistanceY", 1, 1, 1, 2, Q("0.9 mm")),
    Sketcher.Constraint("DistanceY", -1, 1, 0, 2, Q("7.6 mm")),
])
pad4 = body.newObject("PartDesign::Pad", "Pad003")
pad4.Profile = sketch9
pad4.Type = "UpToFirst"
doc.recompute()

linearpattern = body.newObject("PartDesign::LinearPattern", "LinearPattern")
linearpattern.Originals = [pad4]
linearpattern.Direction = (doc.getObject("Y_Axis"), [""])
linearpattern.Mode = "offset"
linearpattern.Offset = 2
linearpattern.Occurrences = 5
body.Tip = linearpattern

# Sketch on YZ plane
sketch10 = body.newObject("Sketcher::SketchObject", "Sketch009")
sketch10.AttachmentSupport = (doc.getObject("YZ_Plane"), [""])
sketch10.MapMode = "FlatFace"
sketch10.AttachmentOffset = App.Placement(App.Vector(0, 0, -7), App.Rotation())
sketch10.addGeometry([
    Part.LineSegment(App.Vector(15, 7.6, 0), App.Vector(14, 7.6, 0)),
    Part.LineSegment(App.Vector(14, 7.6, 0), App.Vector(14, 8.5, 0)),
    Part.LineSegment(App.Vector(14, 8.5, 0), App.Vector(15, 8.5, 0)),
    Part.LineSegment(App.Vector(15, 8.5, 0), App.Vector(15, 7.6, 0)),
], False)
sketch10.addConstraint([
    Sketcher.Constraint("Coincident", 0, 2, 1, 1),
    Sketcher.Constraint("Coincident", 1, 2, 2, 1),
    Sketcher.Constraint("Coincident", 2, 2, 3, 1),
    Sketcher.Constraint("Coincident", 3, 2, 0, 1),
    Sketcher.Constraint("Horizontal", 0),
    Sketcher.Constraint("Vertical", 1),
    Sketcher.Constraint("Horizontal", 2),
    Sketcher.Constraint("Vertical", 3),
    Sketcher.Constraint("DistanceX", 0, 2, 0, 1, Q("1 mm")),
    Sketcher.Constraint("DistanceY", 1, 1, 1, 2, Q("0.9 mm")),
    Sketcher.Constraint("DistanceX", -1, 1, 0, 2, Q("14 mm")),
    Sketcher.Constraint("DistanceY", -1, 1, 0, 2, Q("7.6 mm")),
])
pad5 = body.newObject("PartDesign::Pad", "Pad004")
pad5.Profile = sketch10
pad5.Type = "UpToFirst"
doc.recompute()

linearpattern2 = body.newObject("PartDesign::LinearPattern", "LinearPattern001")
linearpattern2.Originals = [pad5]
linearpattern2.Direction = (doc.getObject("Y_Axis"), [""])
linearpattern2.Mode = "offset"
linearpattern2.Offset = 2
linearpattern2.Occurrences = 5
body.Tip = linearpattern2

# Sketch on XY plane
sketch11 = body.newObject("Sketcher::SketchObject", "Sketch010")
sketch11.AttachmentSupport = (doc.getObject("XY_Plane"), [""])
sketch11.MapMode = "FlatFace"
sketch11.AttachmentOffset = App.Placement(App.Vector(0, 0, 1.7), App.Rotation())
sketch11.addGeometry([
    Part.LineSegment(App.Vector(-7, 12, 0), App.Vector(0, 12, 0)),
    Part.LineSegment(App.Vector(0, 12, 0), App.Vector(-7, 14, 0)),
    Part.LineSegment(App.Vector(-7, 14, 0), App.Vector(-7, 12, 0)),
], False)
sketch11.addConstraint([
    Sketcher.Constraint("Coincident", 0, 2, 1, 1),
    Sketcher.Constraint("Coincident", 1, 2, 2, 1),
    Sketcher.Constraint("Coincident", 2, 2, 0, 1),
    Sketcher.Constraint("Horizontal", 0),
    Sketcher.Constraint("Vertical", 2),
    Sketcher.Constraint("PointOnObject", 0, 2, -2),
    Sketcher.Constraint("DistanceX", 0, 1, 0, 2, Q("7 mm")),
    Sketcher.Constraint("DistanceY", 2, 2, 2, 1, Q("2 mm")),
    Sketcher.Constraint("DistanceY", -1, 1, 0, 2, Q("12 mm")),
])
pocket6 = body.newObject("PartDesign::Pocket", "Pocket005")
pocket6.Profile = sketch11
pocket6.Length = 14
pocket6.Reversed = True

doc.recompute()
